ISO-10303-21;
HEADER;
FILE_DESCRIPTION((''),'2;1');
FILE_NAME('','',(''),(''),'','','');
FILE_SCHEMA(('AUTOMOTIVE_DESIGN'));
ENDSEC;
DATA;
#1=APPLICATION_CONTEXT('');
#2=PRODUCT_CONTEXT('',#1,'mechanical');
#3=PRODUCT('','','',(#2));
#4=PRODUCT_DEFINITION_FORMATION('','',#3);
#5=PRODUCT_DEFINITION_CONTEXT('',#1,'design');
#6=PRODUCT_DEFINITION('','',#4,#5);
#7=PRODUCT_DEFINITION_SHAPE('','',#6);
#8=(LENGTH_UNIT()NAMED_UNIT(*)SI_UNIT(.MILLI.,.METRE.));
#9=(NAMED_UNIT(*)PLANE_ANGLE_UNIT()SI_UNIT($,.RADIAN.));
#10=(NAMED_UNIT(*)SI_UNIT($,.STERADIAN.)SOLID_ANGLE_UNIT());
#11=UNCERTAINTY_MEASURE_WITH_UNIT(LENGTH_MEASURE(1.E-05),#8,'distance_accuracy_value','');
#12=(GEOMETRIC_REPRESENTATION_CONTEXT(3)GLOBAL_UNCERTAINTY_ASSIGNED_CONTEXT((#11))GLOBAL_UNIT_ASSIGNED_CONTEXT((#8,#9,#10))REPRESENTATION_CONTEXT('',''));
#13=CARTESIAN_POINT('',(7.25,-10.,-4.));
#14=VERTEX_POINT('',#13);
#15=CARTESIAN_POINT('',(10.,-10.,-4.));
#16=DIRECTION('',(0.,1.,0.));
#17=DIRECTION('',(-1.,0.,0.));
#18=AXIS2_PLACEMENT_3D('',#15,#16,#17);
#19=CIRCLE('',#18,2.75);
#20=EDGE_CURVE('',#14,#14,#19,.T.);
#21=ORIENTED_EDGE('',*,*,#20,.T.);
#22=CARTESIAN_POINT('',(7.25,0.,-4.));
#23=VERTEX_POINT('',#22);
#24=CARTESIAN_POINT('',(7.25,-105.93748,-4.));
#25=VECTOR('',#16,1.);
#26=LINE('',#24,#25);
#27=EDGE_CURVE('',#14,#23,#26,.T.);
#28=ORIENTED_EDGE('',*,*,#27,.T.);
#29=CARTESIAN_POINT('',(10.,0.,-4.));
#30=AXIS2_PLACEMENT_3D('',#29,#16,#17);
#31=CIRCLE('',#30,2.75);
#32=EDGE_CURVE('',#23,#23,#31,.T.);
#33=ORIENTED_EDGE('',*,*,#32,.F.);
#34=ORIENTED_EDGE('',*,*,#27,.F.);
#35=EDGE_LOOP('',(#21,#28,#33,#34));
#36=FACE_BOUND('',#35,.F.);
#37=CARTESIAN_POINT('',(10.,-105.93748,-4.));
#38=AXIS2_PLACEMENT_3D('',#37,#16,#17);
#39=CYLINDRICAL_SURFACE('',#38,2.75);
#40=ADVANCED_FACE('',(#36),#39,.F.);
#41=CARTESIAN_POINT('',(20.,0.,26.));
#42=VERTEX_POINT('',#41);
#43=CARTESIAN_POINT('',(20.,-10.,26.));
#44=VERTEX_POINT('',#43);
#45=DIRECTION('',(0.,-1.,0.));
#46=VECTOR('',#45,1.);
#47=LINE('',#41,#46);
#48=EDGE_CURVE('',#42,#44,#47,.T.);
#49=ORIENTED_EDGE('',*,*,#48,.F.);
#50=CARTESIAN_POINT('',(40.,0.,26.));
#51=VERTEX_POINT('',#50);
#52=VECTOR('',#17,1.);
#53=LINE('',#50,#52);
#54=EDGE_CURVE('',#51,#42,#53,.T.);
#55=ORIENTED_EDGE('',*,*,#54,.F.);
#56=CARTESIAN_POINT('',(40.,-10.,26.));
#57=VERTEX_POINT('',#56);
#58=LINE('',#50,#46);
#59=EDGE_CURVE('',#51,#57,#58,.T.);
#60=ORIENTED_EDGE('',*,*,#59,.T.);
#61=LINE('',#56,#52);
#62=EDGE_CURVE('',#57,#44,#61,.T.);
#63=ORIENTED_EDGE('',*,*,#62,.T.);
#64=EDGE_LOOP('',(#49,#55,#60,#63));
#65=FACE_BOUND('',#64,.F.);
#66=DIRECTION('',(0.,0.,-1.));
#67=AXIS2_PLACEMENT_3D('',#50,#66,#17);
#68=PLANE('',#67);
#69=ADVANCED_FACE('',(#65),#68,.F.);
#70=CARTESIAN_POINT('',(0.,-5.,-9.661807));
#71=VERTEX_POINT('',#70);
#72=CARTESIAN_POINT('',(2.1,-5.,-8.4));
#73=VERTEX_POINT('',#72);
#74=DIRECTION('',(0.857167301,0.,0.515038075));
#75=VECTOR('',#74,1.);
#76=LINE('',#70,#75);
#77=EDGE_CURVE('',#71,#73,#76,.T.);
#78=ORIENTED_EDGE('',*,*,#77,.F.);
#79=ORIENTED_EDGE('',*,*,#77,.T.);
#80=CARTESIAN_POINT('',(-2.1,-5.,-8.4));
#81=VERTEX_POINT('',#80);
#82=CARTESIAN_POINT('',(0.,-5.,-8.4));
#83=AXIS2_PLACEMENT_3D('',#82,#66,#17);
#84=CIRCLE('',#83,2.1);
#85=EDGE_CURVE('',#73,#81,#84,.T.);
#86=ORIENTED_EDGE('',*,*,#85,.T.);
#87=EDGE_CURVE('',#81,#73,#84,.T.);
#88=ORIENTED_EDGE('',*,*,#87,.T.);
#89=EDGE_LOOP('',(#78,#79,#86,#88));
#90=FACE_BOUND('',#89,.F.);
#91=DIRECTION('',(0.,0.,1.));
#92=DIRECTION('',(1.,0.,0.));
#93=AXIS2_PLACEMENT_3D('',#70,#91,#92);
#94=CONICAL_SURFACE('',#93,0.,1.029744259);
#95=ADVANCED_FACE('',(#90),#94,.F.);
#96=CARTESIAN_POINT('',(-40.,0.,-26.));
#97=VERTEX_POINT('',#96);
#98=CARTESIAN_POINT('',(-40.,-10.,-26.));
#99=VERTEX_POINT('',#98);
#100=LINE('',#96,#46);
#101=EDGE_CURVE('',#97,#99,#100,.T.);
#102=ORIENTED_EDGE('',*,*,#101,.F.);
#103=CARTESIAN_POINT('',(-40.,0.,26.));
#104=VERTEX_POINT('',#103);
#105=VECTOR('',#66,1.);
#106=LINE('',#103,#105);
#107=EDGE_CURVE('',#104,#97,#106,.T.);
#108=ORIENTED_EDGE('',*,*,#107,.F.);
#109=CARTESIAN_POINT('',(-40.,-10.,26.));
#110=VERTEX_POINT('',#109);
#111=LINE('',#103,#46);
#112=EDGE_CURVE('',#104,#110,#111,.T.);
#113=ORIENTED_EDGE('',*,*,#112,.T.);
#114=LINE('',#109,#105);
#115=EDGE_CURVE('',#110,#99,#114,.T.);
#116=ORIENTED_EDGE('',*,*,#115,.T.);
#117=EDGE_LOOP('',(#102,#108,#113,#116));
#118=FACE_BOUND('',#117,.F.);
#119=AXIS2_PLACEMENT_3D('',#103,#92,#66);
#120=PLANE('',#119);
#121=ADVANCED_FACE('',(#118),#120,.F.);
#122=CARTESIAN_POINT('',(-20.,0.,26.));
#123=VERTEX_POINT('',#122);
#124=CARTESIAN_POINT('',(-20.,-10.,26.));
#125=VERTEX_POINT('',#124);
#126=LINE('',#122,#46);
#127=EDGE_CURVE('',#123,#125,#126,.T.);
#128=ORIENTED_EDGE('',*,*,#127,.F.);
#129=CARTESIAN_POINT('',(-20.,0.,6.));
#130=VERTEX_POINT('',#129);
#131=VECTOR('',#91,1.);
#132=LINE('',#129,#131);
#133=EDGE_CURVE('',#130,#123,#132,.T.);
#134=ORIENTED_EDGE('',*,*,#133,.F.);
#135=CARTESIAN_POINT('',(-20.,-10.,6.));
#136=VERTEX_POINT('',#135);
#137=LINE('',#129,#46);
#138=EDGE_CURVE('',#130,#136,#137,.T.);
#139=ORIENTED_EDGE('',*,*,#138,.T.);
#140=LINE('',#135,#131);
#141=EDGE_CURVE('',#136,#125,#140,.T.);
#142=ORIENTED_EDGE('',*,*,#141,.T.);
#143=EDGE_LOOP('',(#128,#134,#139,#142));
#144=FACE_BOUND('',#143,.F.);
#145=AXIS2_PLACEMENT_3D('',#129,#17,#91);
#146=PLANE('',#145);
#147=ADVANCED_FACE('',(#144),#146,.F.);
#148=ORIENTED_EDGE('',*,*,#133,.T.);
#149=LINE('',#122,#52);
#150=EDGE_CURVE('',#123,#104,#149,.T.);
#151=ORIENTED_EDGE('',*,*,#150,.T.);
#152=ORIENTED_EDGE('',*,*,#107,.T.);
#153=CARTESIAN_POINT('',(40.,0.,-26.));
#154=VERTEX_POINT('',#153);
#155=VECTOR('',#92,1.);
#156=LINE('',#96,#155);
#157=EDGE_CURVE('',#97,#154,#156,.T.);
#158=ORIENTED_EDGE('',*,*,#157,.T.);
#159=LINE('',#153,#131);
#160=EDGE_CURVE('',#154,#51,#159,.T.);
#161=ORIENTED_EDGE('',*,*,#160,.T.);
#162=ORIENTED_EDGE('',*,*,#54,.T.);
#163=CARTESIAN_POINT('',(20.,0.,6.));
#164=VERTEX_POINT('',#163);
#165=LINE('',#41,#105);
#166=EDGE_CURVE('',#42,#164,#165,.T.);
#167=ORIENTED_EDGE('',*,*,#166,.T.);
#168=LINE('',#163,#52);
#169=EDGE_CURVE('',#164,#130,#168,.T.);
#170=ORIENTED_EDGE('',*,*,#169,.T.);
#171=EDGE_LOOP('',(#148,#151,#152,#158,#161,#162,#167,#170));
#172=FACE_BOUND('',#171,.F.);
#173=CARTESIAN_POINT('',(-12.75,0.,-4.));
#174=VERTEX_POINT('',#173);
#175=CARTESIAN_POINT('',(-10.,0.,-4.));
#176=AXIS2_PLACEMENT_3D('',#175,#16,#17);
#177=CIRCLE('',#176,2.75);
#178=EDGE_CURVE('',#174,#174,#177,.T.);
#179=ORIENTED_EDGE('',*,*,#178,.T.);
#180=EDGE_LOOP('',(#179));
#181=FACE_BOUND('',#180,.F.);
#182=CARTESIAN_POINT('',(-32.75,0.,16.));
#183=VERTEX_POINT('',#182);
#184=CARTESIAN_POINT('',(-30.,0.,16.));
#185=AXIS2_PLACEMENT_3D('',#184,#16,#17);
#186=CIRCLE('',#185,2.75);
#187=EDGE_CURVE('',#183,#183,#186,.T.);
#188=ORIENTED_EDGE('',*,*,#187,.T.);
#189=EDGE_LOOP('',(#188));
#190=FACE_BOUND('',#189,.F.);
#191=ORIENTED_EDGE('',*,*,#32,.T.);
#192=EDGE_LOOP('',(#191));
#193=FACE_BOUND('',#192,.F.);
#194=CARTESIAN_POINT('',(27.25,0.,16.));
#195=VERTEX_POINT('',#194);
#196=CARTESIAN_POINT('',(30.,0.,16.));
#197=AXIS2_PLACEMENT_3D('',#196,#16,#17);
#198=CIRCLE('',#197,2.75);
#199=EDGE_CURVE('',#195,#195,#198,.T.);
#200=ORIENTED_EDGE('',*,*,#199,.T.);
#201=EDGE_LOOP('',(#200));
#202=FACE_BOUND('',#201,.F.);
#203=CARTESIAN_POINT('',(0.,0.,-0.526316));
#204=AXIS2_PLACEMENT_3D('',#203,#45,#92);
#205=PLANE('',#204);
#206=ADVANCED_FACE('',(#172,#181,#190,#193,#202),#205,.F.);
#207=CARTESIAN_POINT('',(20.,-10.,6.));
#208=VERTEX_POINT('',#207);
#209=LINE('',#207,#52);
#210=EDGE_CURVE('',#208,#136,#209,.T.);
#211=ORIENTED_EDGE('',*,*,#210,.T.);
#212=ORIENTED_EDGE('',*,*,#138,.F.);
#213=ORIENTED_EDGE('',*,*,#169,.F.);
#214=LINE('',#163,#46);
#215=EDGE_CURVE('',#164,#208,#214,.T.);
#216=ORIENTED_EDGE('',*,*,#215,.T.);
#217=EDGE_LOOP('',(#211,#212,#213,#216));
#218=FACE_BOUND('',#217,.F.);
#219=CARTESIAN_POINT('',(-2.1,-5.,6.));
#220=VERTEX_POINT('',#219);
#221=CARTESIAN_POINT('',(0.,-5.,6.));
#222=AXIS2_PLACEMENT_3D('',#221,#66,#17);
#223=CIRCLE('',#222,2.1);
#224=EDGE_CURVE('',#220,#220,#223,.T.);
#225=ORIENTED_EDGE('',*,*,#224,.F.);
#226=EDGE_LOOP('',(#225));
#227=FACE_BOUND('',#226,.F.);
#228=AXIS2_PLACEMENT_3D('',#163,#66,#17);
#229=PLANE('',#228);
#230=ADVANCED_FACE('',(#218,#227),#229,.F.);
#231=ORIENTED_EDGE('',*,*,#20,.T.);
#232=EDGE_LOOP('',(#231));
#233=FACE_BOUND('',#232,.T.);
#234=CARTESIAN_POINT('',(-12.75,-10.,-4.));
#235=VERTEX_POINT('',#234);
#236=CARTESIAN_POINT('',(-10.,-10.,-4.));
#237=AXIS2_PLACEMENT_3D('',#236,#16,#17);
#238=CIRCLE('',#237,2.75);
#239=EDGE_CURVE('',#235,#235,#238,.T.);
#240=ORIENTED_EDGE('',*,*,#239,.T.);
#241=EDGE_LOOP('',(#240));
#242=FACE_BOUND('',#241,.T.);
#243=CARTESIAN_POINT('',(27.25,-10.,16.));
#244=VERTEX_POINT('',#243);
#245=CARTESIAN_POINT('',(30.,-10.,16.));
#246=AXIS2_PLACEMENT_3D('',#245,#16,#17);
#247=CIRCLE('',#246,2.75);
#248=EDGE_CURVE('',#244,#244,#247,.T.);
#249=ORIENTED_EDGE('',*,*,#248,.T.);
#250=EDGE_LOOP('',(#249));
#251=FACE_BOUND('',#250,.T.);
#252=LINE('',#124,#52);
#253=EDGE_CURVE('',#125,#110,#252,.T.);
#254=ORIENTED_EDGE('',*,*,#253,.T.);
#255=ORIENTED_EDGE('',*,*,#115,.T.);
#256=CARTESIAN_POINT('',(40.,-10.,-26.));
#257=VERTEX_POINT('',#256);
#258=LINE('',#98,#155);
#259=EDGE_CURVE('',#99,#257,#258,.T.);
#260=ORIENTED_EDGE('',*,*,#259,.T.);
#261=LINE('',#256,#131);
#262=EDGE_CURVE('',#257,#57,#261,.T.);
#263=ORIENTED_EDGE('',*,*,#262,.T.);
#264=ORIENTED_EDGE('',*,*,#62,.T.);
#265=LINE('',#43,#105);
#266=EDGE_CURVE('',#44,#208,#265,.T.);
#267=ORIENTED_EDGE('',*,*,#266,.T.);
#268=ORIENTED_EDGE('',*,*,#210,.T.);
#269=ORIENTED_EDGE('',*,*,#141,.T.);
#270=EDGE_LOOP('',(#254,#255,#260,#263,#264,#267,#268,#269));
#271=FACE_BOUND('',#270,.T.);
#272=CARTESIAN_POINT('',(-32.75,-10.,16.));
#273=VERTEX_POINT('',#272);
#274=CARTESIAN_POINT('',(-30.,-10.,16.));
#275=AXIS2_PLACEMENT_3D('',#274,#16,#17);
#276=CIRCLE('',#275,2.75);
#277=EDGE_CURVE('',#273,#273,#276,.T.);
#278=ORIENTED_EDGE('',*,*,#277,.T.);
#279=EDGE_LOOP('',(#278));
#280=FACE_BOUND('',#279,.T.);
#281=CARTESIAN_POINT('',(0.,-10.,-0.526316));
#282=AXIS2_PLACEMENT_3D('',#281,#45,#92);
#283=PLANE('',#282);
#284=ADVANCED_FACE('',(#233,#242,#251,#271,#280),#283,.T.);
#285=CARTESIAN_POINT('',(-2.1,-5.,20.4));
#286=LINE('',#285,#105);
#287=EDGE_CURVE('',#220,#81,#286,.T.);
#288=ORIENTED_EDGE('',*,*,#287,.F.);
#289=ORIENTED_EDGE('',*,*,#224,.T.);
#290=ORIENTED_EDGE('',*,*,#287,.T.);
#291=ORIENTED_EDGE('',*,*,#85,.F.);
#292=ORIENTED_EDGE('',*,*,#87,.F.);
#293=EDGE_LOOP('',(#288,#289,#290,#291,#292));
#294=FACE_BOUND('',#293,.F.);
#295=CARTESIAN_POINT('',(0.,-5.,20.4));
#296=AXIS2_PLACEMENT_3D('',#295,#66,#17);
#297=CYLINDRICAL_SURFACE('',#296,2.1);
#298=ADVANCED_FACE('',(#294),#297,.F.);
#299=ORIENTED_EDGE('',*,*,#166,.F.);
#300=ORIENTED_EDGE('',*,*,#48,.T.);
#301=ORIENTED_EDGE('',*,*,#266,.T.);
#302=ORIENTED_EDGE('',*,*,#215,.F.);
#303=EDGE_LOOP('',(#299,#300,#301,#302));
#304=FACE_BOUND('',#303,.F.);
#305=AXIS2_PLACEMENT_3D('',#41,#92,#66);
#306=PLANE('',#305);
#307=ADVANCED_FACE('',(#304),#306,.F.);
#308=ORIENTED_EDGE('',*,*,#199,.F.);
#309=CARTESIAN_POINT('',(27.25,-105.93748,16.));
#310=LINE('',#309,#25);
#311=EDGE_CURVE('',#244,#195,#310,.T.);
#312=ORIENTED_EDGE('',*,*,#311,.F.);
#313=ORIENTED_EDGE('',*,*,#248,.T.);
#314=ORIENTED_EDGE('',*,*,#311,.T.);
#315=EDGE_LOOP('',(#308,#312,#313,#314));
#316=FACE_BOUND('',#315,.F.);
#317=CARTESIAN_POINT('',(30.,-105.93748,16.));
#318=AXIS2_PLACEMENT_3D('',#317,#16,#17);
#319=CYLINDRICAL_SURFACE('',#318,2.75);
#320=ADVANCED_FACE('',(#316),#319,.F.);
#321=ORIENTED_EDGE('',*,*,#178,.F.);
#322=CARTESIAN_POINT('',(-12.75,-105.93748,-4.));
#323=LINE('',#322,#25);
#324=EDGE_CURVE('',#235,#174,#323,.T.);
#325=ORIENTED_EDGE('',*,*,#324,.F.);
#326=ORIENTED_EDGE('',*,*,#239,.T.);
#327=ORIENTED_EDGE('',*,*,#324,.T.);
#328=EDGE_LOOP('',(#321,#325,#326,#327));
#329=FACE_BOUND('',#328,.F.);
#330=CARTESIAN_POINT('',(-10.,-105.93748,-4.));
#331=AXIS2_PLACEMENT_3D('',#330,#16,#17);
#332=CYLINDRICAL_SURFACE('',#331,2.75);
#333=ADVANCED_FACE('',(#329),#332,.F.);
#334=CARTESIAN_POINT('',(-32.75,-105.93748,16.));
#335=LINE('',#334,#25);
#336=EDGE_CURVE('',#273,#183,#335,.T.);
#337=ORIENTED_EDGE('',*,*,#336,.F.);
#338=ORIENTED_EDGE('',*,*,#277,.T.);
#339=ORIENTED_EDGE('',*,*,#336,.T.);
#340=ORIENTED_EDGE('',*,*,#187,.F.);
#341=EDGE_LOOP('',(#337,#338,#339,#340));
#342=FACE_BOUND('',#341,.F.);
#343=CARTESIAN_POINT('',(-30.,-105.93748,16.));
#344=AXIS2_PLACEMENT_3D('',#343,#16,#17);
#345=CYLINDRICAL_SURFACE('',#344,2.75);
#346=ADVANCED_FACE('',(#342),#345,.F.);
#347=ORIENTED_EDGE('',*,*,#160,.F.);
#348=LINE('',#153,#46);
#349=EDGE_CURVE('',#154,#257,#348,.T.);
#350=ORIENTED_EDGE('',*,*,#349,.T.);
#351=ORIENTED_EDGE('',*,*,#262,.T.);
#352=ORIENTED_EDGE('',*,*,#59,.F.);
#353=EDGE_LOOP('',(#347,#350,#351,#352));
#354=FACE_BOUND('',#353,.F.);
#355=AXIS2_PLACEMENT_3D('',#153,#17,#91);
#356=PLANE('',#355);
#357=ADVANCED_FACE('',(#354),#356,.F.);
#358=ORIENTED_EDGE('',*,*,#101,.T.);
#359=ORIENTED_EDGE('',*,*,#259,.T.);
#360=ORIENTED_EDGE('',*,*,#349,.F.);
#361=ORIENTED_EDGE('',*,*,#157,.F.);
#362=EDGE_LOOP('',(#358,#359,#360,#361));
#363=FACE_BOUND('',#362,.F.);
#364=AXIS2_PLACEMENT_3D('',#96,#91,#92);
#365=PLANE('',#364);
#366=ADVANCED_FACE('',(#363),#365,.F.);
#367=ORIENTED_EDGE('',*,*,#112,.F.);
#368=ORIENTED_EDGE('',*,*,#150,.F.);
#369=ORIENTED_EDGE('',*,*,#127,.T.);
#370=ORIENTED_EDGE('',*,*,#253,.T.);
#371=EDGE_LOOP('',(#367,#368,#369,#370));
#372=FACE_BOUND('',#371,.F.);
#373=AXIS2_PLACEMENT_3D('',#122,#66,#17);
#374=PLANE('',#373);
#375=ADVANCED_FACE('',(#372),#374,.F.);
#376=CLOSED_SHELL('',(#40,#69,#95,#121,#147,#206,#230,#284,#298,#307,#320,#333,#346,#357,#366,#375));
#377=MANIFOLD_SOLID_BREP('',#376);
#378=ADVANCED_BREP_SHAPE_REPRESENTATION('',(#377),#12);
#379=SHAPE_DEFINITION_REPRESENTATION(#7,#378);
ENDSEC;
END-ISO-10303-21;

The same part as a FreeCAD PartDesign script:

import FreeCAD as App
import Part
import Sketcher

V = App.Vector
Q = App.Units.Quantity

doc = App.newDocument("Part")
params = doc.addObject("Spreadsheet::Sheet", "Params")
for row, (alias, value) in enumerate([
    ("sketch1_width", "80 mm"),
    ("sketch1_width2", "20 mm"),
    ("sketch1_height", "52 mm"),
    ("pad1_length", "10 mm"),
    ("sketch2_diameter", "5.5 mm"),
    ("hole_diameter", "5.5 mm"),
    ("sketch3_diameter", "4.2 mm"),
    ("hole2_diameter", "4.2 mm"),
    ("hole2_depth", "14.4 mm"),
], start=1):
    params.set(f"A{row}", alias)
    params.set(f"B{row}", "=" + value)
    params.setAlias(f"B{row}", alias)

body = doc.addObject("PartDesign::Body", "Body")

# Sketch on XZ plane
sketch1 = body.newObject("Sketcher::SketchObject", "Sketch")
sketch1.AttachmentSupport = (doc.getObject("XZ_Plane"), [""])
sketch1.MapMode = "FlatFace"
sketch1.addGeometry(Part.LineSegment(V(-40, 26, 0), V(-40, -26, 0)), False)
sketch1.addGeometry(Part.LineSegment(V(-40, -26, 0), V(40, -26, 0)), False)
sketch1.addGeometry(Part.LineSegment(V(40, -26, 0), V(40, 26, 0)), False)
sketch1.addGeometry(Part.LineSegment(V(40, 26, 0), V(20, 26, 0)), False)
sketch1.addGeometry(Part.LineSegment(V(20, 26, 0), V(20, 6, 0)), False)
sketch1.addGeometry(Part.LineSegment(V(20, 6, 0), V(-20, 6, 0)), False)
sketch1.addGeometry(Part.LineSegment(V(-20, 6, 0), V(-20, 26, 0)), False)
sketch1.addGeometry(Part.LineSegment(V(-20, 26, 0), V(-40, 26, 0)), False)
sketch1.addConstraint(Sketcher.Constraint("Coincident", 0, 2, 1, 1))
sketch1.addConstraint(Sketcher.Constraint("Coincident", 1, 2, 2, 1))
sketch1.addConstraint(Sketcher.Constraint("Coincident", 2, 2, 3, 1))
sketch1.addConstraint(Sketcher.Constraint("Coincident", 3, 2, 4, 1))
sketch1.addConstraint(Sketcher.Constraint("Coincident", 4, 2, 5, 1))
sketch1.addConstraint(Sketcher.Constraint("Coincident", 5, 2, 6, 1))
sketch1.addConstraint(Sketcher.Constraint("Coincident", 6, 2, 7, 1))
sketch1.addConstraint(Sketcher.Constraint("Coincident", 7, 2, 0, 1))
sketch1.addConstraint(Sketcher.Constraint("Vertical", 0))
sketch1.addConstraint(Sketcher.Constraint("Horizontal", 1))
sketch1.addConstraint(Sketcher.Constraint("Vertical", 2))
sketch1.addConstraint(Sketcher.Constraint("Horizontal", 3))
sketch1.addConstraint(Sketcher.Constraint("Vertical", 4))
sketch1.addConstraint(Sketcher.Constraint("Horizontal", 5))
sketch1.addConstraint(Sketcher.Constraint("Vertical", 6))
sketch1.addConstraint(Sketcher.Constraint("Horizontal", 7))
sketch1.addConstraint(Sketcher.Constraint("Symmetric", 0, 2, 2, 2, -1, 1))
sketch1.addConstraint(Sketcher.Constraint("Symmetric", 3, 2, 6, 2, -2))
sketch1.addConstraint(Sketcher.Constraint("Equal", 7, 4))
sketch1.addConstraint(Sketcher.Constraint("DistanceX", 1, 1, 1, 2, Q("80 mm")))
sketch1.addConstraint(Sketcher.Constraint("DistanceX", 3, 2, 3, 1, Q("20 mm")))
sketch1.addConstraint(Sketcher.Constraint("DistanceY", 0, 2, 0, 1, Q("52 mm")))
sketch1.setExpression("Constraints[19]", "Params.sketch1_width")
sketch1.setExpression("Constraints[20]", "Params.sketch1_width2")
sketch1.setExpression("Constraints[21]", "Params.sketch1_height")
pad1 = body.newObject("PartDesign::Pad", "Pad")
pad1.Profile = sketch1
pad1.setExpression("Length", "Params.pad1_length")

# Sketch on XZ plane
sketch2 = body.newObject("Sketcher::SketchObject", "Sketch001")
sketch2.AttachmentSupport = (doc.getObject("XZ_Plane"), [""])
sketch2.MapMode = "FlatFace"
sketch2.AttachmentOffset = App.Placement(V(0, 0, 10), App.Rotation())
sketch2.addGeometry(Part.Circle(V(-30, 16, 0), V(0, 0, 1), 2.8), False)
sketch2.addGeometry(Part.Circle(V(-10, -4, 0), V(0, 0, 1), 2.8), False)
sketch2.addGeometry(Part.Circle(V(10, -4, 0), V(0, 0, 1), 2.8), False)
sketch2.addGeometry(Part.Circle(V(30, 16, 0), V(0, 0, 1), 2.8), False)
sketch2.addConstraint(Sketcher.Constraint("Equal", 0, 1))
sketch2.addConstraint(Sketcher.Constraint("Equal", 1, 2))
sketch2.addConstraint(Sketcher.Constraint("Equal", 2, 3))
sketch2.addConstraint(Sketcher.Constraint("Symmetric", 1, 3, 2, 3, -2))
sketch2.addConstraint(Sketcher.Constraint("Symmetric", 0, 3, 3, 3, -2))
sketch2.addConstraint(Sketcher.Constraint("Diameter", 0, Q("5.5 mm")))
sketch2.addConstraint(Sketcher.Constraint("DistanceX", 0, 3, -1, 1, Q("30 mm")))
sketch2.addConstraint(Sketcher.Constraint("DistanceY", -1, 1, 0, 3, Q("16 mm")))
sketch2.addConstraint(Sketcher.Constraint("DistanceX", 1, 3, -1, 1, Q("10 mm")))
sketch2.addConstraint(Sketcher.Constraint("DistanceY", 1, 3, -1, 1, Q("4 mm")))
sketch2.setExpression("Constraints[5]", "Params.sketch2_diameter")
doc.recompute()
hole = body.newObject("PartDesign::Hole", "Hole")
hole.Profile = sketch2
hole.ThreadType = "None"
hole.setExpression("Diameter", "Params.hole_diameter")
hole.DepthType = "ThroughAll"

# Sketch on XY plane
sketch3 = body.newObject("Sketcher::SketchObject", "Sketch002")
sketch3.AttachmentSupport = (doc.getObject("XY_Plane"), [""])
sketch3.MapMode = "FlatFace"
sketch3.AttachmentOffset = App.Placement(V(0, 0, 6), App.Rotation())
sketch3.addGeometry(Part.Circle(V(0, -5, 0), V(0, 0, 1), 2.1), False)
sketch3.addConstraint(Sketcher.Constraint("PointOnObject", 0, 3, -2))
sketch3.addConstraint(Sketcher.Constraint("Diameter", 0, Q("4.2 mm")))
sketch3.addConstraint(Sketcher.Constraint("DistanceY", 0, 3, -1, 1, Q("5 mm")))
sketch3.setExpression("Constraints[1]", "Params.sketch3_diameter")
doc.recompute()
hole2 = body.newObject("PartDesign::Hole", "Hole001")
hole2.Profile = sketch3
hole2.ThreadType = "None"
hole2.setExpression("Diameter", "Params.hole2_diameter")
hole2.DepthType = "Dimension"
hole2.setExpression("Depth", "Params.hole2_depth")
hole2.DrillPoint = "Angled"
hole2.DrillPointAngle = 118

doc.recompute()
